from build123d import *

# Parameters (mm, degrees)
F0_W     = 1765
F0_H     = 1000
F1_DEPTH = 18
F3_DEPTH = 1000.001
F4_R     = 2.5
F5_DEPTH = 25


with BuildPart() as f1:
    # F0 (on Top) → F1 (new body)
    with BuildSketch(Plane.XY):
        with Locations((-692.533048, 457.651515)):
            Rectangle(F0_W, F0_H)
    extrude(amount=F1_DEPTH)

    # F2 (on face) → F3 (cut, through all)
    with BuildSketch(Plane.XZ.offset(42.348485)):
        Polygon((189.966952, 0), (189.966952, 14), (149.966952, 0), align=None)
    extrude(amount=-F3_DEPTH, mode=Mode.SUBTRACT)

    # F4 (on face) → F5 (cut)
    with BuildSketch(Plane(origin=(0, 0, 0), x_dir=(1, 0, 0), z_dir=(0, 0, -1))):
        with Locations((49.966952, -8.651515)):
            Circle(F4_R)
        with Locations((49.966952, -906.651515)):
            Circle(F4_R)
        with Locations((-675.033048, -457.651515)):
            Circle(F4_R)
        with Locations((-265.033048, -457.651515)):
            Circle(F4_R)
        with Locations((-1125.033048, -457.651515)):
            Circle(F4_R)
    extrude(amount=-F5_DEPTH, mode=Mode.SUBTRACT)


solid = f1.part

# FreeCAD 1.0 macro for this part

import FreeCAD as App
import Part
import Sketcher

V = App.Vector

doc = App.newDocument("Part")
body = doc.addObject("PartDesign::Body", "Body")

# Sketch on XY plane
sketch1 = body.newObject("Sketcher::SketchObject", "Sketch")
sketch1.AttachmentSupport = (doc.getObject("XY_Plane"), [""])
sketch1.MapMode = "FlatFace"
sketch1.addGeometry([
    Part.LineSegment(V(-1575, 958, 0), V(-1575, -42, 0)),
    Part.LineSegment(V(-1575, -42, 0), V(190, -42, 0)),
    Part.LineSegment(V(190, -42, 0), V(190, 958, 0)),
    Part.LineSegment(V(190, 958, 0), V(-1575, 958, 0)),
], False)
sketch1.addConstraint([
    Sketcher.Constraint("Coincident", 0, 2, 1, 1),
    Sketcher.Constraint("Coincident", 1, 2, 2, 1),
    Sketcher.Constraint("Coincident", 2, 2, 3, 1),
    Sketcher.Constraint("Coincident", 3, 2, 0, 1),
    Sketcher.Constraint("Vertical", 0),
    Sketcher.Constraint("Horizontal", 1),
    Sketcher.Constraint("Vertical", 2),
    Sketcher.Constraint("Horizontal", 3),
    Sketcher.Constraint("DistanceX", 1, 1, 1, 2, 1765.0),
    Sketcher.Constraint("DistanceY", 0, 2, 0, 1, 1000.0),
    Sketcher.Constraint("DistanceX", 0, 2, -1, 1, 1575.033048),
    Sketcher.Constraint("DistanceY", 0, 2, -1, 1, 42.348485),
])
pad1 = body.newObject("PartDesign::Pad", "Pad")
pad1.Profile = sketch1
pad1.Length = 18

# Sketch on XZ plane
sketch2 = body.newObject("Sketcher::SketchObject", "Sketch001")
sketch2.AttachmentSupport = (doc.getObject("XZ_Plane"), [""])
sketch2.MapMode = "FlatFace"
sketch2.AttachmentOffset = App.Placement(V(0, 0, 42.348485), App.Rotation())
sketch2.addGeometry([
    Part.LineSegment(V(190, 0, 0), V(190, 14, 0)),
    Part.LineSegment(V(190, 14, 0), V(150, 0, 0)),
    Part.LineSegment(V(150, 0, 0), V(190, 0, 0)),
], False)
sketch2.addConstraint([
    Sketcher.Constraint("Coincident", 0, 2, 1, 1),
    Sketcher.Constraint("Coincident", 1, 2, 2, 1),
    Sketcher.Constraint("Coincident", 2, 2, 0, 1),
    Sketcher.Constraint("Vertical", 0),
    Sketcher.Constraint("Horizontal", 2),
    Sketcher.Constraint("PointOnObject", 1, 2, -1),
    Sketcher.Constraint("DistanceX", 2, 1, 2, 2, 40.0),
    Sketcher.Constraint("DistanceY", 0, 1, 0, 2, 14.0),
    Sketcher.Constraint("DistanceX", -1, 1, 0, 2, 189.966952),
])
pocket1 = body.newObject("PartDesign::Pocket", "Pocket")
pocket1.Profile = sketch2
pocket1.Type = "ThroughAll"

# Sketch on XY plane
sketch3 = body.newObject("Sketcher::SketchObject", "Sketch002")
sketch3.AttachmentSupport = (doc.getObject("XY_Plane"), [""])
sketch3.MapMode = "FlatFace"
sketch3.addGeometry([
    Part.Circle(V(50, 8.7, 0), V(0, 0, 1), 2.5),  # 0
    Part.Circle(V(50, 906.7, 0), V(0, 0, 1), 2.5),  # 1
    Part.Circle(V(-675, 457.7, 0), V(0, 0, 1), 2.5),  # 2
    Part.Circle(V(-265, 457.7, 0), V(0, 0, 1), 2.5),  # 3
    Part.Circle(V(-1125, 457.7, 0), V(0, 0, 1), 2.5),  # 4
], False)
sketch3.addConstraint([
    Sketcher.Constraint("Equal", 0, 1),
    Sketcher.Constraint("Equal", 1, 2),
    Sketcher.Constraint("Equal", 2, 3),
    Sketcher.Constraint("Equal", 3, 4),
    Sketcher.Constraint("Horizontal", 2, 3, 3, 3),
    Sketcher.Constraint("Horizontal", 3, 3, 4, 3),
    Sketcher.Constraint("Vertical", 0, 3, 1, 3),
    Sketcher.Constraint("Diameter", 0, 5.0),
    Sketcher.Constraint("DistanceY", 0, 3, 1, 3, 898.0),
    Sketcher.Constraint("DistanceX", 2, 3, 0, 3, 725.0),
    Sketcher.Constraint("DistanceY", 0, 3, 2, 3, 449.0),
    Sketcher.Constraint("DistanceX", 2, 3, 3, 3, 410.0),
    Sketcher.Constraint("DistanceX", 4, 3, 2, 3, 450.0),
    Sketcher.Constraint("DistanceX", 2, 3, -1, 1, 675.033048),
    Sketcher.Constraint("DistanceY", -1, 1, 0, 3, 8.651515),
])
pocket2 = body.newObject("PartDesign::Pocket", "Pocket001")
pocket2.Profile = sketch3
pocket2.Length = 25
pocket2.Reversed = True

doc.recompute()
